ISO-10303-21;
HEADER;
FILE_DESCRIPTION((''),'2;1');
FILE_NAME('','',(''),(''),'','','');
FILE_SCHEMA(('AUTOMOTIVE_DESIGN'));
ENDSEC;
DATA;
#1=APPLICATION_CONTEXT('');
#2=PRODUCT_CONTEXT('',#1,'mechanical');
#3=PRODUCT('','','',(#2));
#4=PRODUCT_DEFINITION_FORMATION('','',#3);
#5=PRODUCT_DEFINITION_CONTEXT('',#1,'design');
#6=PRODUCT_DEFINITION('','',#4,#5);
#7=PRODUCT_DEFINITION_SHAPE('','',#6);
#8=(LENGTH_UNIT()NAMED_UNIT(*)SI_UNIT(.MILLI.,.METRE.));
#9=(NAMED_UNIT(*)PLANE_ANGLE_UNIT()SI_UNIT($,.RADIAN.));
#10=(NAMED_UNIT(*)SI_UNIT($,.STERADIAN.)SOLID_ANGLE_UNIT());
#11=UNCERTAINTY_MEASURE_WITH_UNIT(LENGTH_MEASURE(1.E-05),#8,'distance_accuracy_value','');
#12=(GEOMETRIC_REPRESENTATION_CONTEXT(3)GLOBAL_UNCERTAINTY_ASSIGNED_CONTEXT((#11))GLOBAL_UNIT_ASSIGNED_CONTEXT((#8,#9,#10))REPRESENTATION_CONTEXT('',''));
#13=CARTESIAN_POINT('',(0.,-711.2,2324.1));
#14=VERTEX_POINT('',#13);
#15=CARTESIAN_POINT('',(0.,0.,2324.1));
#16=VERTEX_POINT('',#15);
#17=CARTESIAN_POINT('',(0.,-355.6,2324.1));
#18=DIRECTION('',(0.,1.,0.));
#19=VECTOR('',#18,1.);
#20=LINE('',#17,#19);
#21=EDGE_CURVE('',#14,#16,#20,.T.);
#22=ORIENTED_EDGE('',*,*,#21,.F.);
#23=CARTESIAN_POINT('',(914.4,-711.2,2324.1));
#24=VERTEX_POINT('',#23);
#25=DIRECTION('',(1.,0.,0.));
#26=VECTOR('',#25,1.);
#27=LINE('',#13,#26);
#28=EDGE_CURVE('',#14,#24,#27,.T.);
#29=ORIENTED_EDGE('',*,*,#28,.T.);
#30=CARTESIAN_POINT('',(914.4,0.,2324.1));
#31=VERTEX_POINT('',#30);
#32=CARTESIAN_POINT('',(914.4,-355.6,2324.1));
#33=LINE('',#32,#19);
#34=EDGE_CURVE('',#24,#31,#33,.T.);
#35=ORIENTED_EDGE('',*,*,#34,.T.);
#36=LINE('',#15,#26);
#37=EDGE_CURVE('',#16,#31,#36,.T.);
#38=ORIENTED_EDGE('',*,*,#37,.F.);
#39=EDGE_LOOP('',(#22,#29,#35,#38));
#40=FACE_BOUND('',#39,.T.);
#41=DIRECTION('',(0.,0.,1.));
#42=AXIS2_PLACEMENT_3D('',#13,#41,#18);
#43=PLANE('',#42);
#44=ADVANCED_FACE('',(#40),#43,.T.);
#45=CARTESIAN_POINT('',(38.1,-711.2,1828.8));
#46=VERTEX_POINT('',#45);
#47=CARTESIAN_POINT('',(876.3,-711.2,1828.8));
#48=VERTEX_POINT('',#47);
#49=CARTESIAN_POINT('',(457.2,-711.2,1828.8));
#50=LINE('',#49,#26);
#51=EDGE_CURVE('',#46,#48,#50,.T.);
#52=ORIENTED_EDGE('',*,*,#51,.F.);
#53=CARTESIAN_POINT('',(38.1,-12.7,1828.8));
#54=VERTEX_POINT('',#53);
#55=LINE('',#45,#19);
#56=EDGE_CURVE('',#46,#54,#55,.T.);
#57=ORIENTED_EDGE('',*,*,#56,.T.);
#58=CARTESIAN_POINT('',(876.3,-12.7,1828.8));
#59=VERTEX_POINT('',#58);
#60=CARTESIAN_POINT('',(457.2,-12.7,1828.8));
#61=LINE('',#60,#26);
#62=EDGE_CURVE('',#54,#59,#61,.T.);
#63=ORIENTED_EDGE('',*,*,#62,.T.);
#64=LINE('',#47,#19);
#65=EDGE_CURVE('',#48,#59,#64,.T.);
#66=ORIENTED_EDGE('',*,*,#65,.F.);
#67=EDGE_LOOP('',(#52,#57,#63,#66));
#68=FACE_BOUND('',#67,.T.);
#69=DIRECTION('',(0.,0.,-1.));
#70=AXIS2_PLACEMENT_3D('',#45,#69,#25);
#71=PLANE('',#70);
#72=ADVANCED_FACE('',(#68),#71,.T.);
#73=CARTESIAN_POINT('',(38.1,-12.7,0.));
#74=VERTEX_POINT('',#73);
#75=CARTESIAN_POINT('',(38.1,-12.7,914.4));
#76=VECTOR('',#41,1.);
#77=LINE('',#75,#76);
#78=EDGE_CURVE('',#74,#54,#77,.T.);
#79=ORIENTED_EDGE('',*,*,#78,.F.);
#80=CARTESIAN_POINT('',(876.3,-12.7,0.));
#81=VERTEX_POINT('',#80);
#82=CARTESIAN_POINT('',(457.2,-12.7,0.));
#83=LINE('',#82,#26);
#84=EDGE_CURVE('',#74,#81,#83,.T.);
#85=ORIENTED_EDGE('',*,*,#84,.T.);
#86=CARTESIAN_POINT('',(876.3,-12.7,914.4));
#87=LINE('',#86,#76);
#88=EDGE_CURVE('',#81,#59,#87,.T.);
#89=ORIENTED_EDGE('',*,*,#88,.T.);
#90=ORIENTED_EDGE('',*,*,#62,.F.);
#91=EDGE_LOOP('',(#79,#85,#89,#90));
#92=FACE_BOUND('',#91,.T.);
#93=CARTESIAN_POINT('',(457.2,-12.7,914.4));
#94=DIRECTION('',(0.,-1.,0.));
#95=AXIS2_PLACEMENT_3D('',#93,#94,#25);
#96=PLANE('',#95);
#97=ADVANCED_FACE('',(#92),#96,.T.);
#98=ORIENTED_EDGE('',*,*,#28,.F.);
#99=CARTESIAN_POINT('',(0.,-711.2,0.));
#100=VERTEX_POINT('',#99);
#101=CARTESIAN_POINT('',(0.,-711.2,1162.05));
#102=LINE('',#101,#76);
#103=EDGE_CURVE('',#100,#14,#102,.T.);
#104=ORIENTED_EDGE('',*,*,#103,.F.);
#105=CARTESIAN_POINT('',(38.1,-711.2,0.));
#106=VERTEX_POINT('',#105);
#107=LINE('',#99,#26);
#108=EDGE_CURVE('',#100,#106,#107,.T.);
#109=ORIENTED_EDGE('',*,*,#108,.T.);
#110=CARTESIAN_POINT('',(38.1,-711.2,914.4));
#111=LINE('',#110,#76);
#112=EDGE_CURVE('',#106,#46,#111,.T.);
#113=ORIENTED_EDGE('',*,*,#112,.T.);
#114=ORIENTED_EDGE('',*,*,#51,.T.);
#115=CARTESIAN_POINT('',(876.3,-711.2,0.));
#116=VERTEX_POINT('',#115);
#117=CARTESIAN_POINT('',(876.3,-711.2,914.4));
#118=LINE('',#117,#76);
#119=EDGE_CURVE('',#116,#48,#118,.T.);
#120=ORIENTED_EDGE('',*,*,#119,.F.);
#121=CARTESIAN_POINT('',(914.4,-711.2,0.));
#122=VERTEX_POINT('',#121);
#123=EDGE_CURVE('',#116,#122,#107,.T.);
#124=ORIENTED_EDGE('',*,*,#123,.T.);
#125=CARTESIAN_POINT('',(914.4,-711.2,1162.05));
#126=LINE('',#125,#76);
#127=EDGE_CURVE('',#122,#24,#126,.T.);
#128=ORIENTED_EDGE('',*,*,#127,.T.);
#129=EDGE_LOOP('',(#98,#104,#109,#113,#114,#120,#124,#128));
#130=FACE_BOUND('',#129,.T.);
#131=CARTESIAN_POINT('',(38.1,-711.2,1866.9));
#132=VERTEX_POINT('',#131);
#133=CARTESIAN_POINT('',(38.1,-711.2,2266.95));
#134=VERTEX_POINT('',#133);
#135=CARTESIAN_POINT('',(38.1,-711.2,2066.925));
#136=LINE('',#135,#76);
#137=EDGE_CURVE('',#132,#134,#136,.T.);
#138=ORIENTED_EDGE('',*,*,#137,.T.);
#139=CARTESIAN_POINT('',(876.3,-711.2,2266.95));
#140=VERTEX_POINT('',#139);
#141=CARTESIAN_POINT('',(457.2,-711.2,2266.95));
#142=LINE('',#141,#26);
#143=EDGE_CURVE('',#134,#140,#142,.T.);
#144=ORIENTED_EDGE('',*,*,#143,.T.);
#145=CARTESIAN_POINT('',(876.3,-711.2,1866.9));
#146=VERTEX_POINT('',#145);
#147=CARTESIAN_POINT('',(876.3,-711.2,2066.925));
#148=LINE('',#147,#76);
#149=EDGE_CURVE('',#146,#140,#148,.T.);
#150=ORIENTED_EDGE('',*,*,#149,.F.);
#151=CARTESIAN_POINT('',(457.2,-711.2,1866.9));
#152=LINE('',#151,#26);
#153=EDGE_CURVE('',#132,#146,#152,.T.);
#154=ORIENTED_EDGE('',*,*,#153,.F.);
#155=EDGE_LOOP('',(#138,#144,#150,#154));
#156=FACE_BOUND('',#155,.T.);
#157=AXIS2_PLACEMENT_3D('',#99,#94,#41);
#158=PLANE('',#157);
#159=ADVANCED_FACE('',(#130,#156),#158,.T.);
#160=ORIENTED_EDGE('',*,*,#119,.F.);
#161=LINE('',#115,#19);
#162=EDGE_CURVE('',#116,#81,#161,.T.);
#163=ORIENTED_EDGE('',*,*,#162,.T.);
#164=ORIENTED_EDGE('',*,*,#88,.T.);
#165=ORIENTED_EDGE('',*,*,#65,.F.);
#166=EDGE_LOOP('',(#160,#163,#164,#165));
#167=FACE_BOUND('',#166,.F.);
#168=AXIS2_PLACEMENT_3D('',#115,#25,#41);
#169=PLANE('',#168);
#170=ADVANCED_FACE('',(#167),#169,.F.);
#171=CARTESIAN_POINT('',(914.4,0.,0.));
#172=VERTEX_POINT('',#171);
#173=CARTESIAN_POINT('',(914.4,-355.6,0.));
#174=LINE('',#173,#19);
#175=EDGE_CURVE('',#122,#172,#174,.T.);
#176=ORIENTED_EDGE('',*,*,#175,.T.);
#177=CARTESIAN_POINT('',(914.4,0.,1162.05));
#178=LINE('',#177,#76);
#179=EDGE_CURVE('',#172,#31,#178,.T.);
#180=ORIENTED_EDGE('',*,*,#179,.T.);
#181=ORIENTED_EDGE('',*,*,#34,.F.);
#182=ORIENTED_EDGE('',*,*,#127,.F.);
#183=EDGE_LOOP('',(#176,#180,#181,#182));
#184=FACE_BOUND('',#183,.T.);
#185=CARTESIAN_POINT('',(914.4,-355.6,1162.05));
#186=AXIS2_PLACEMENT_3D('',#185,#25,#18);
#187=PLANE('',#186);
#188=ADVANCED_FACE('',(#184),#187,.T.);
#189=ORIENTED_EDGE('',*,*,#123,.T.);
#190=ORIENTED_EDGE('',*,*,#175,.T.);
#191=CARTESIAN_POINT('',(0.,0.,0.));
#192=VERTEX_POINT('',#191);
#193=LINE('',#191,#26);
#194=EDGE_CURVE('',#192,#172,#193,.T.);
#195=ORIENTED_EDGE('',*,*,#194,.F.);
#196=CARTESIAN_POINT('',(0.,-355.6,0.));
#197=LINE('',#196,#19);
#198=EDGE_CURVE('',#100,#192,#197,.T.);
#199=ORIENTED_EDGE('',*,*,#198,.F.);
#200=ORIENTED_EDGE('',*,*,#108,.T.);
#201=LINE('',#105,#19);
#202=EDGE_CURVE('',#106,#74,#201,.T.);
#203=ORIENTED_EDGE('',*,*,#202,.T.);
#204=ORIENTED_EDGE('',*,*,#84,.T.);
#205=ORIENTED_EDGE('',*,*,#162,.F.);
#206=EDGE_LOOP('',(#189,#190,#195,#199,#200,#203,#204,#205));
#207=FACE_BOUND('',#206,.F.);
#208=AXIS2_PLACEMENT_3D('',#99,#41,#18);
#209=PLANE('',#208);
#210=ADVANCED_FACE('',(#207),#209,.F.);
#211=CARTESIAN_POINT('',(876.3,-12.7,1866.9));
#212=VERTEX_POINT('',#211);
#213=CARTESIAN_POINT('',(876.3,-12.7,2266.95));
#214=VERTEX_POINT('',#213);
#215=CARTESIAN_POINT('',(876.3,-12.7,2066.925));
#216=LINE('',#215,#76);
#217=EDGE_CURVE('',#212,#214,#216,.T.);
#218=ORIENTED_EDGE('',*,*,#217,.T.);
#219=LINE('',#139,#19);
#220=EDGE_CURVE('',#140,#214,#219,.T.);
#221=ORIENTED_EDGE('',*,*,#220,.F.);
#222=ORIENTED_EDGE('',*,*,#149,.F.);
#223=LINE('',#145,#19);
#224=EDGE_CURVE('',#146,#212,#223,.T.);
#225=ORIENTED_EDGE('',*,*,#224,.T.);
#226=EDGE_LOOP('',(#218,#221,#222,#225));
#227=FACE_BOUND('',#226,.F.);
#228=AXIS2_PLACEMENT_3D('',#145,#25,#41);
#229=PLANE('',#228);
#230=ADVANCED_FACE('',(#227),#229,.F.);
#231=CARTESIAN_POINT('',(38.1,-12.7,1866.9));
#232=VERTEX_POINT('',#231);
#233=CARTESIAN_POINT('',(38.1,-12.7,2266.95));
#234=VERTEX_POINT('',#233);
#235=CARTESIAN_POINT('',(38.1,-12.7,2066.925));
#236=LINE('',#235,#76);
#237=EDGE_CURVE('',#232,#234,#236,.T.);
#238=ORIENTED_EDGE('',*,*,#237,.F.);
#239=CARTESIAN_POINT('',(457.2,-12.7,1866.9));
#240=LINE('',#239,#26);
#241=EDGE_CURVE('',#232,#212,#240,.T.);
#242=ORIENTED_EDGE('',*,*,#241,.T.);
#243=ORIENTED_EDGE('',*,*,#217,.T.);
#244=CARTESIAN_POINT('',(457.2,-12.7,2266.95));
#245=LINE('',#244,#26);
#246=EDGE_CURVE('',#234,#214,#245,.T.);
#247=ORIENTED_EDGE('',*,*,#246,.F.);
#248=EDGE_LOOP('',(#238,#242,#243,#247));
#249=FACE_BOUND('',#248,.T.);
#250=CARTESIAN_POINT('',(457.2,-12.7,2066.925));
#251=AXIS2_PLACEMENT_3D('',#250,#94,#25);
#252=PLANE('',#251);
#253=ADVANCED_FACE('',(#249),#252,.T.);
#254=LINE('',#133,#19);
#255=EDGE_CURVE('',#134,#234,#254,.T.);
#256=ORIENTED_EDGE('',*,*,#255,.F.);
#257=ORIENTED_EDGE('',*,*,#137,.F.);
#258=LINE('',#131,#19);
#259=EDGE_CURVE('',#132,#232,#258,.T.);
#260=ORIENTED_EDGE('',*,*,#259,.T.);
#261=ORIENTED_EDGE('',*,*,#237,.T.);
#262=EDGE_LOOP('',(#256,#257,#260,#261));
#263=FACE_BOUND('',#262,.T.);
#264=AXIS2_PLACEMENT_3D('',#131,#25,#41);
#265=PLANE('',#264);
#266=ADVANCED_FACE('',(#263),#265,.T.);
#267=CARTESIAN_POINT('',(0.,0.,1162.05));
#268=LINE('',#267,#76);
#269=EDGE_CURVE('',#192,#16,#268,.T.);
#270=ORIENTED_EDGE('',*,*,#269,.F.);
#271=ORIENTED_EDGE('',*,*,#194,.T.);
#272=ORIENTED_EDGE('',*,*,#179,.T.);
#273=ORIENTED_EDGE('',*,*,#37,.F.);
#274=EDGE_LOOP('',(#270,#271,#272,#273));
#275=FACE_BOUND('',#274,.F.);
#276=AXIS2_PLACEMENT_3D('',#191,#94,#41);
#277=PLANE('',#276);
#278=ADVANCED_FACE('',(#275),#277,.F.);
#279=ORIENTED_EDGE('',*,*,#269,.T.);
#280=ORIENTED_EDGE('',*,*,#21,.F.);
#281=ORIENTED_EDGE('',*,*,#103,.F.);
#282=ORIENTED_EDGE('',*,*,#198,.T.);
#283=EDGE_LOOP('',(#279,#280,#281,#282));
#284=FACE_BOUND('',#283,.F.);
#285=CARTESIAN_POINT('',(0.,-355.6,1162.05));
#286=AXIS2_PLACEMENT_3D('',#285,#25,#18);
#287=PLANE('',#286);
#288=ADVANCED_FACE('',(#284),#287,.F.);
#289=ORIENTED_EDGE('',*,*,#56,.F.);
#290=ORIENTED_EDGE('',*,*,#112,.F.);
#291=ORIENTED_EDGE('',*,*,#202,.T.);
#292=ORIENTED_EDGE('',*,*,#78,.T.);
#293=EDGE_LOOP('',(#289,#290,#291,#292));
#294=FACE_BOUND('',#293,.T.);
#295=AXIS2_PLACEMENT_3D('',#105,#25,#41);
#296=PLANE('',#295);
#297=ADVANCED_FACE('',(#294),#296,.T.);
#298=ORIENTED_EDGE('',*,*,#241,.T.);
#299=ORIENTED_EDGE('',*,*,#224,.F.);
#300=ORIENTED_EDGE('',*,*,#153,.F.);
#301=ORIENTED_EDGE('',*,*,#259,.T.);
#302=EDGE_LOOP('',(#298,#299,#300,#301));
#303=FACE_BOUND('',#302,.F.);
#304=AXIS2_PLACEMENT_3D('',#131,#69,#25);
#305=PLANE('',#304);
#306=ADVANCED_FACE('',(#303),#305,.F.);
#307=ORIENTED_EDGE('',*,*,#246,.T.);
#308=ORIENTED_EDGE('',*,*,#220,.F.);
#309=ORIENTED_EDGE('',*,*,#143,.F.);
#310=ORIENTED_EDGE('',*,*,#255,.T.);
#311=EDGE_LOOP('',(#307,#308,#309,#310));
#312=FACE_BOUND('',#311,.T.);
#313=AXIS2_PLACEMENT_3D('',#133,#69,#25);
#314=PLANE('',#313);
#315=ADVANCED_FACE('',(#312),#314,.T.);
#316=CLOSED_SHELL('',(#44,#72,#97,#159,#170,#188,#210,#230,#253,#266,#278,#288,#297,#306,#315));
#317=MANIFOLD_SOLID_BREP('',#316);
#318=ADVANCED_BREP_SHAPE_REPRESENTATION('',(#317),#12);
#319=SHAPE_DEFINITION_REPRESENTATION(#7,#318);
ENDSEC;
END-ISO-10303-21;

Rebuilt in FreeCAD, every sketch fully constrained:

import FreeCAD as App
import Part
import Sketcher
Q = App.Units.Quantity


def add_polygon(sketch, points):
    """Adds a closed chain of lines whose ends are joined by coincident constraints."""
    first, n = sketch.GeometryCount, len(points)
    for a, b in zip(points, points[1:] + points[:1]):
        sketch.addGeometry(Part.LineSegment(App.Vector(*a, 0), App.Vector(*b, 0)), False)
    for i in range(n):
        sketch.addConstraint(Sketcher.Constraint("Coincident", first + i, 2, first + (i + 1) % n, 1))

doc = App.newDocument("Part")
body = doc.addObject("PartDesign::Body", "Body")

# Sketch on YZ plane
sketch1 = body.newObject("Sketcher::SketchObject", "Sketch")
sketch1.AttachmentSupport = (doc.getObject("YZ_Plane"), [""])
sketch1.MapMode = "FlatFace"
add_polygon(sketch1, [(-711, 2324), (-711, 0), (0, 0), (0, 2324)])  # lines 0-3
sketch1.addConstraint([
    Sketcher.Constraint("Vertical", 0),
    Sketcher.Constraint("Horizontal", 1),
    Sketcher.Constraint("Vertical", 2),
    Sketcher.Constraint("Horizontal", 3),
    Sketcher.Constraint("Coincident", 1, 2, -1, 1),
    Sketcher.Constraint("DistanceX", 1, 1, 1, 2, Q("28 in")),
    Sketcher.Constraint("DistanceY", 0, 2, 0, 1, Q("91.5 in")),
])
pad1 = body.newObject("PartDesign::Pad", "Pad")
pad1.Profile = sketch1
pad1.Length = Q("36 in")

# Sketch on XZ plane
sketch2 = body.newObject("Sketcher::SketchObject", "Sketch001")
sketch2.AttachmentSupport = (doc.getObject("XZ_Plane"), [""])
sketch2.MapMode = "FlatFace"
sketch2.AttachmentOffset = App.Placement(App.Vector(0, 0, 28 * 25.4), App.Rotation())
add_polygon(sketch2, [(38, 1829), (38, 0), (876, 0), (876, 1829)])  # lines 0-3
add_polygon(sketch2, [(38, 2267), (38, 1867), (876, 1867), (876, 2267)])  # lines 4-7
sketch2.addConstraint([
    Sketcher.Constraint("Vertical", 0),
    Sketcher.Constraint("Horizontal", 1),
    Sketcher.Constraint("Vertical", 2),
    Sketcher.Constraint("Horizontal", 3),
    Sketcher.Constraint("Vertical", 4),
    Sketcher.Constraint("Horizontal", 5),
    Sketcher.Constraint("Vertical", 6),
    Sketcher.Constraint("Horizontal", 7),
    Sketcher.Constraint("PointOnObject", 0, 2, -1),
    Sketcher.Constraint("Vertical", 3, 2, 4, 2),
    Sketcher.Constraint("Vertical", 2, 2, 5, 2),
    Sketcher.Constraint("DistanceX", 1, 1, 1, 2, Q("33 in")),
    Sketcher.Constraint("DistanceY", 0, 2, 0, 1, Q("72 in")),
    Sketcher.Constraint("DistanceY", 4, 2, 4, 1, Q("15.75 in")),
    Sketcher.Constraint("DistanceX", -1, 1, 0, 2, Q("1.5 in")),
    Sketcher.Constraint("DistanceY", -1, 1, 4, 2, Q("73.5 in")),
])
pocket1 = body.newObject("PartDesign::Pocket", "Pocket")
pocket1.Profile = sketch2
pocket1.Length = Q("27.5 in")

doc.recompute()
